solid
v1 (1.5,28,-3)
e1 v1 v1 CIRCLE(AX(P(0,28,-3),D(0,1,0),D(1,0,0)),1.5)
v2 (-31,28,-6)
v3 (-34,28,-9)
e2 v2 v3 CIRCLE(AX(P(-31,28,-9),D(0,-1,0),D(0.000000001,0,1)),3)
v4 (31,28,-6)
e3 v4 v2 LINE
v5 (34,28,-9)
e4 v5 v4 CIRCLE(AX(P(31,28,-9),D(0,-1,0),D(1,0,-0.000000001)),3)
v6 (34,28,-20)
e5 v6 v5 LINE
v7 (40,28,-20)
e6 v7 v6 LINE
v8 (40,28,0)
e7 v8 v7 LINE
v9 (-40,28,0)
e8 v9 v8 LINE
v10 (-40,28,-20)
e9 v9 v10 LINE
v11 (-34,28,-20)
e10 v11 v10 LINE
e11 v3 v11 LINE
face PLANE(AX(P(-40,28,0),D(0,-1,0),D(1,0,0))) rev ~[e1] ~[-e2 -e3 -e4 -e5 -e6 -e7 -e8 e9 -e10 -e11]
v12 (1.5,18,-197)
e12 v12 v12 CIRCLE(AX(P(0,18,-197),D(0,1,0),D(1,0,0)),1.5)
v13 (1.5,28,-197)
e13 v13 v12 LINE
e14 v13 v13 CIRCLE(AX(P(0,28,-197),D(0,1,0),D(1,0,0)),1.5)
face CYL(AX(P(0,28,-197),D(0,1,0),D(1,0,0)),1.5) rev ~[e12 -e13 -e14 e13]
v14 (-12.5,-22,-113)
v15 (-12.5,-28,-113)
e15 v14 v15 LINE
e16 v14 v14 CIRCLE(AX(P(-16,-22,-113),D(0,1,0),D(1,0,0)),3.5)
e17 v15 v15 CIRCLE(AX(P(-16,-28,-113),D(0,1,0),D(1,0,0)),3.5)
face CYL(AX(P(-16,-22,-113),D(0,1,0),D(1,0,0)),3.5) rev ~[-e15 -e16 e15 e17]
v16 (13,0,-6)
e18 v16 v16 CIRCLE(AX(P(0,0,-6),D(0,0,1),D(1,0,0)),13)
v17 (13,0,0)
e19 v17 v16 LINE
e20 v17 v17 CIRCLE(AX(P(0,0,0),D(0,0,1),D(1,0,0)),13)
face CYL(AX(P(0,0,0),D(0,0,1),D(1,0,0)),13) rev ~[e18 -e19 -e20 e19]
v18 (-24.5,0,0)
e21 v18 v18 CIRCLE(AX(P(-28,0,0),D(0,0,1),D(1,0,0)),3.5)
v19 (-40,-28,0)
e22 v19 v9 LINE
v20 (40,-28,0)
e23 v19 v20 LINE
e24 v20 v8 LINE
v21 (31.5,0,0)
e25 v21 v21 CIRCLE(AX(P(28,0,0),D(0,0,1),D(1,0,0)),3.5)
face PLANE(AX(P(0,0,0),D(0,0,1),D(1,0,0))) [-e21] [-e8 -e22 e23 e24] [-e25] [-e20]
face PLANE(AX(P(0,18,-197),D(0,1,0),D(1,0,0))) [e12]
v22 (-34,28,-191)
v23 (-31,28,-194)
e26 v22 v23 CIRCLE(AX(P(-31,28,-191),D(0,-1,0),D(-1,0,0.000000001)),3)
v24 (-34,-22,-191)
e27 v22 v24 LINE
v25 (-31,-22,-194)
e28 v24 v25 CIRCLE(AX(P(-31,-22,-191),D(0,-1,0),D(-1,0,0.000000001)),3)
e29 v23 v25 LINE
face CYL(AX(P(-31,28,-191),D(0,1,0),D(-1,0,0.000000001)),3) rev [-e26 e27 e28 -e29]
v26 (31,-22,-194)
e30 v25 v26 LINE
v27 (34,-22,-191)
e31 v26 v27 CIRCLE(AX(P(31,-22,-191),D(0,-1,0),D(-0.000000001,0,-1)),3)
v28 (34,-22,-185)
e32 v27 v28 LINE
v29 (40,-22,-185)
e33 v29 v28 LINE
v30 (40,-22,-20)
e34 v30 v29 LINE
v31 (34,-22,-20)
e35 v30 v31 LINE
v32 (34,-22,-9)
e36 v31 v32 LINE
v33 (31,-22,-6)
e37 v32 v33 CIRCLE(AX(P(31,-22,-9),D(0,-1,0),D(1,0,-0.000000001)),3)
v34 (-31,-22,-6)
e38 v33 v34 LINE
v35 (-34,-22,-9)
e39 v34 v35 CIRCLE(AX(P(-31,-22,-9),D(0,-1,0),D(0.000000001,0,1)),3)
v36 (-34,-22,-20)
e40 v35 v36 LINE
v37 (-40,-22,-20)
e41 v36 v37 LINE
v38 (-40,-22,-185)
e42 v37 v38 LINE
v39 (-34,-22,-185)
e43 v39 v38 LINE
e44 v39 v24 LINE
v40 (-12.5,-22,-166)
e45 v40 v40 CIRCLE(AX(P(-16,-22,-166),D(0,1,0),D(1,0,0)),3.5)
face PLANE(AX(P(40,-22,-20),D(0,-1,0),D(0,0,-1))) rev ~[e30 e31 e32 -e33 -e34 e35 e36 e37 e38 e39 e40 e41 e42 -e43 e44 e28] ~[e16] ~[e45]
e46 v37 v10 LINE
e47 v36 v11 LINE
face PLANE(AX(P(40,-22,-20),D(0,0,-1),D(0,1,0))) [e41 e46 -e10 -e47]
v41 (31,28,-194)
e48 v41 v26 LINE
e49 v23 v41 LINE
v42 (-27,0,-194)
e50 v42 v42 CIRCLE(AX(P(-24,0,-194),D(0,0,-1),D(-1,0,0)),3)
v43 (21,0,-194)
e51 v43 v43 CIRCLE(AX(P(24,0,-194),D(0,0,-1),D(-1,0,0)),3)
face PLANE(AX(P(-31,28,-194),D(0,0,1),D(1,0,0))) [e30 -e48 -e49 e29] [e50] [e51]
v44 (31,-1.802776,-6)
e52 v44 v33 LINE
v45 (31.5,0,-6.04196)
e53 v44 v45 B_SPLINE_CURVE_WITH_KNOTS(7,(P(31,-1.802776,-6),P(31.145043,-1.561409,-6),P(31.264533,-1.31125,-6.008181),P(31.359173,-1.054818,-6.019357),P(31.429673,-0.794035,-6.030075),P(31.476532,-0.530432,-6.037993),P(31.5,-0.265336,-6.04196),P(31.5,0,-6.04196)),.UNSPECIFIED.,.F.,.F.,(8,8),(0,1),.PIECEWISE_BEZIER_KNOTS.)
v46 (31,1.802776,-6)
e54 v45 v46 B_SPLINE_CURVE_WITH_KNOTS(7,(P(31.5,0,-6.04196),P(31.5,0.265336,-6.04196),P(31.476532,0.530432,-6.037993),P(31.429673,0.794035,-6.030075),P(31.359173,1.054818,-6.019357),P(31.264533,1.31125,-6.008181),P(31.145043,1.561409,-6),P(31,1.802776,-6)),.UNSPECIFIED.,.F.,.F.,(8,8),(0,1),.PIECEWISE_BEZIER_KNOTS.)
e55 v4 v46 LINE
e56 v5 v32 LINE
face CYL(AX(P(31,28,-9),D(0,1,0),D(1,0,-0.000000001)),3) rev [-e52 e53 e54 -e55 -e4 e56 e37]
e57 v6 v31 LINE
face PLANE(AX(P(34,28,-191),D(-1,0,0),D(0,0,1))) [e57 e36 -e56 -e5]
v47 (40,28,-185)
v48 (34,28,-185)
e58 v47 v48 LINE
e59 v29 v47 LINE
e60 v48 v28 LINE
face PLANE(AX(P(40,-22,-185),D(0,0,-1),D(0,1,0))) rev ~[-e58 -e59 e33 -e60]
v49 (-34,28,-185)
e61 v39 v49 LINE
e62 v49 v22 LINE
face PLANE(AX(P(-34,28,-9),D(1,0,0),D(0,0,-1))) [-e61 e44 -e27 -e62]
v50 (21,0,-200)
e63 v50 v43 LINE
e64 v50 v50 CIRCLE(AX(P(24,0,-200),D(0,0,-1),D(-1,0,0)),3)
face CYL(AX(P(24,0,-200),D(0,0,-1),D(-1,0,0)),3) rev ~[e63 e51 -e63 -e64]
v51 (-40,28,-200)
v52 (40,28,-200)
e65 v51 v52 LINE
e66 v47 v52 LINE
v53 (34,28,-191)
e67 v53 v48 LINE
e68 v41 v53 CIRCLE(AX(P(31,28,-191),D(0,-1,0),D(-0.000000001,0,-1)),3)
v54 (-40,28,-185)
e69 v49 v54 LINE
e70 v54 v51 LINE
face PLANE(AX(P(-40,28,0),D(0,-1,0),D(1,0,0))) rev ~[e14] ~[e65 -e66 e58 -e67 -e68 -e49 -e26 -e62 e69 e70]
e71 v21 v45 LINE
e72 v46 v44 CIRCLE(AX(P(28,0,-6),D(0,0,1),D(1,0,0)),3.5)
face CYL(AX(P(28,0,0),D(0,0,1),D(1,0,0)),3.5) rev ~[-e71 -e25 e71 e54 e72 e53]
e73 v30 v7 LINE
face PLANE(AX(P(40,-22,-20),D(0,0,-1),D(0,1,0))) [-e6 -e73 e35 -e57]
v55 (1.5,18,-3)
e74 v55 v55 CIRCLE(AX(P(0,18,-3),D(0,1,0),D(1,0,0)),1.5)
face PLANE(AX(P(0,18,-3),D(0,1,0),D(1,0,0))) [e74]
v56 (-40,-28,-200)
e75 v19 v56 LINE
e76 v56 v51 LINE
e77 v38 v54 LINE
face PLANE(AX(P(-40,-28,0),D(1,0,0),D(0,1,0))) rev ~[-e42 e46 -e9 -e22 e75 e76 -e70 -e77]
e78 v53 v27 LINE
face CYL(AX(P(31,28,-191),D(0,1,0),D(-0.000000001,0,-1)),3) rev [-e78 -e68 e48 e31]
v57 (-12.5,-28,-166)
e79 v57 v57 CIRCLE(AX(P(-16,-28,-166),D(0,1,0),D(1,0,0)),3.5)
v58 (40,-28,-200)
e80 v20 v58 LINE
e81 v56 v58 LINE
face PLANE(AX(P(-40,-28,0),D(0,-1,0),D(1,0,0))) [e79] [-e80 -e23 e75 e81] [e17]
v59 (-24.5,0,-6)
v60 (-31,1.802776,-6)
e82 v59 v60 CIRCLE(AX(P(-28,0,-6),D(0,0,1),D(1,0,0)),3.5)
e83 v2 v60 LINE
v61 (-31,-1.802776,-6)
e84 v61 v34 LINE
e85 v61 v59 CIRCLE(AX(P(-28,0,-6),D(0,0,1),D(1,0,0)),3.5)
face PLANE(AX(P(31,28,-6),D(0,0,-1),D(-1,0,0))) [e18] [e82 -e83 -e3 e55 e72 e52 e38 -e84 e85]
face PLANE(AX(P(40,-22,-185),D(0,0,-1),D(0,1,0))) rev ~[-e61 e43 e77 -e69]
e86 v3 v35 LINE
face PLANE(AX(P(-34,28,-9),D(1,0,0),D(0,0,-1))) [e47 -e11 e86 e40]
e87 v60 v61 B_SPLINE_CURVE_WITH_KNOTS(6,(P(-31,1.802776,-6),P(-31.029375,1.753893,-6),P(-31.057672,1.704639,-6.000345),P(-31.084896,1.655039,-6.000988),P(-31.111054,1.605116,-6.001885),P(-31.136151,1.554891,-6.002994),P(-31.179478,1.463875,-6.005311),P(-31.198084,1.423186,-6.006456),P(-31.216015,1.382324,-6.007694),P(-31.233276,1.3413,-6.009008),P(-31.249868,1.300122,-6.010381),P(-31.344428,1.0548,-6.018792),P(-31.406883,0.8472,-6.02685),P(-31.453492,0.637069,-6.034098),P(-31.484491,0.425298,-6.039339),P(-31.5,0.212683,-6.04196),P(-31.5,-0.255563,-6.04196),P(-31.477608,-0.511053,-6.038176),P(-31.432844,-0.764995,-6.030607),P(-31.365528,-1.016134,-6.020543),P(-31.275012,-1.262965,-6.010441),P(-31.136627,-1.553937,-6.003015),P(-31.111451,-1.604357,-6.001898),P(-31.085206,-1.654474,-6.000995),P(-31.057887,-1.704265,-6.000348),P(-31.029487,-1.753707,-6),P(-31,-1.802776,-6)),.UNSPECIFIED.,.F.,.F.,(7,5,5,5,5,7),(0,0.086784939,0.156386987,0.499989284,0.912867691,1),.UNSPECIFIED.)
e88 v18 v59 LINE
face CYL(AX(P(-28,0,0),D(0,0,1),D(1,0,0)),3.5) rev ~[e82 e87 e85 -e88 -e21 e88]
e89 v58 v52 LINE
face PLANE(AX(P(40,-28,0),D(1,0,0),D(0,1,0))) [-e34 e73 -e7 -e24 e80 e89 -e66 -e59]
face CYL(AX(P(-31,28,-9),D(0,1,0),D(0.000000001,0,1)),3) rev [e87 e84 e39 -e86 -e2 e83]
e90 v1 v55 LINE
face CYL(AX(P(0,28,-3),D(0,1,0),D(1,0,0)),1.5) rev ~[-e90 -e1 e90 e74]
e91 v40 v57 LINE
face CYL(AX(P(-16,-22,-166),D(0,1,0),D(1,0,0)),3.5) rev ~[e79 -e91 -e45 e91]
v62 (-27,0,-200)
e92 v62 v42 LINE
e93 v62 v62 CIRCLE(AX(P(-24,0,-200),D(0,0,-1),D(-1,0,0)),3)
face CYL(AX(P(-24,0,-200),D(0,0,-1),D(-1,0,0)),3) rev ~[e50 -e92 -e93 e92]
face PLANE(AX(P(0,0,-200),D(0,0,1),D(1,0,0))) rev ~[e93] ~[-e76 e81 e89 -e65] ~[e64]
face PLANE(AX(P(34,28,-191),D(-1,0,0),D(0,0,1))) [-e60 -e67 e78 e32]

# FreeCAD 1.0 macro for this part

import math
import FreeCAD as App
import Part
import Sketcher
from FreeCAD import Vector
Q = App.Units.Quantity


def add_polygon(sketch, points):
    """Adds a closed chain of lines whose ends are joined by coincident constraints."""
    first, n = sketch.GeometryCount, len(points)
    for a, b in zip(points, points[1:] + points[:1]):
        sketch.addGeometry(Part.LineSegment(App.Vector(*a, 0), App.Vector(*b, 0)), False)
    for i in range(n):
        sketch.addConstraint(Sketcher.Constraint("Coincident", first + i, 2, first + (i + 1) % n, 1))

doc = App.newDocument("Part")
body = doc.addObject("PartDesign::Body", "Body")

sketch1 = doc.addObject("Sketcher::SketchObject", "Sketch")
body.addObject(sketch1)
sketch1.AttachmentSupport = (doc.XY_Plane, [""])
sketch1.MapMode = "FlatFace"
add_polygon(sketch1, [(-40, 28), (-40, -28), (40, -28), (40, 28)])
sketch1.addConstraint([
    Sketcher.Constraint("Vertical", 0),
    Sketcher.Constraint("Horizontal", 1),
    Sketcher.Constraint("Vertical", 2),
    Sketcher.Constraint("Horizontal", 3),
    Sketcher.Constraint("Symmetric", 0, 2, 2, 2, -1, 1),
    Sketcher.Constraint("DistanceX", 1, 1, 1, 2, Q("80 mm")),
    Sketcher.Constraint("DistanceY", 0, 2, 0, 1, Q("56 mm")),
])
pad1 = doc.addObject("PartDesign::Pad", "Pad")
body.addObject(pad1)
pad1.Profile = sketch1
pad1.Length = 200
pad1.Reversed = True

sketch2 = doc.addObject("Sketcher::SketchObject", "Sketch001")
body.addObject(sketch2)
sketch2.AttachmentSupport = (doc.XZ_Plane, [""])
sketch2.MapMode = "FlatFace"
sketch2.AttachmentOffset = App.Placement(Vector(0, 0, -28), App.Rotation())
sketch2.addGeometry([
    Part.ArcOfCircle(Part.Circle(Vector(-31, -191, 0), Vector(0, 0, 1), 3), math.radians(180), math.radians(270)),
    Part.LineSegment(Vector(-34, -191, 0), Vector(-34, -9, 0)),
    Part.ArcOfCircle(Part.Circle(Vector(-31, -9, 0), Vector(0, 0, 1), 3), math.radians(90), math.radians(180)),
    Part.LineSegment(Vector(-31, -6, 0), Vector(31, -6, 0)),
    Part.ArcOfCircle(Part.Circle(Vector(31, -9, 0), Vector(0, 0, 1), 3), math.radians(0), math.radians(90)),
    Part.LineSegment(Vector(34, -9, 0), Vector(34, -191, 0)),
    Part.ArcOfCircle(Part.Circle(Vector(31, -191, 0), Vector(0, 0, 1), 3), math.radians(-90), math.radians(0)),
    Part.LineSegment(Vector(31, -194, 0), Vector(-31, -194, 0)),
], False)
sketch2.addConstraint([
    Sketcher.Constraint("Tangent", 0, 1, 1, 1),
    Sketcher.Constraint("Tangent", 1, 2, 2, 2),
    Sketcher.Constraint("Tangent", 2, 1, 3, 1),
    Sketcher.Constraint("Tangent", 3, 2, 4, 2),
    Sketcher.Constraint("Tangent", 4, 1, 5, 1),
    Sketcher.Constraint("Tangent", 5, 2, 6, 2),
    Sketcher.Constraint("Tangent", 6, 1, 7, 1),
    Sketcher.Constraint("Tangent", 7, 2, 0, 2),
    Sketcher.Constraint("Vertical", 1),
    Sketcher.Constraint("Horizontal", 3),
    Sketcher.Constraint("Vertical", 5),
    Sketcher.Constraint("Horizontal", 7),
    Sketcher.Constraint("Equal", 0, 2),
    Sketcher.Constraint("Equal", 2, 4),
    Sketcher.Constraint("Equal", 4, 6),
    Sketcher.Constraint("Radius", 0, Q("3 mm")),
    Sketcher.Constraint("DistanceX", 3, 1, 3, 2, Q("62 mm")),
    Sketcher.Constraint("DistanceY", 1, 1, 1, 2, Q("182 mm")),
    Sketcher.Constraint("DistanceX", 0, 3, -1, 1, Q("31 mm")),
    Sketcher.Constraint("DistanceY", 0, 3, -1, 1, Q("191 mm")),
])
pocket1 = doc.addObject("PartDesign::Pocket", "Pocket")
body.addObject(pocket1)
pocket1.Profile = sketch2
pocket1.Length = 50
pocket1.Reversed = True

sketch3 = doc.addObject("Sketcher::SketchObject", "Sketch002")
body.addObject(sketch3)
sketch3.AttachmentSupport = (doc.XY_Plane, [""])
sketch3.MapMode = "FlatFace"
sketch3.addGeometry([
    Part.Circle(Vector(-28, 0, 0), Vector(0, 0, 1), 3.5),
    Part.Circle(Vector(0, 0, 0), Vector(0, 0, 1), 13),
    Part.Circle(Vector(28, 0, 0), Vector(0, 0, 1), 3.5),
], False)
sketch3.addConstraint([
    Sketcher.Constraint("Coincident", 1, 3, -1, 1),
    Sketcher.Constraint("Equal", 0, 2),
    Sketcher.Constraint("Symmetric", 0, 3, 2, 3, -1, 1),
    Sketcher.Constraint("PointOnObject", 0, 3, -1),
    Sketcher.Constraint("Diameter", 0, Q("7 mm")),
    Sketcher.Constraint("Diameter", 1, Q("26 mm")),
    Sketcher.Constraint("DistanceX", 0, 3, -1, 1, Q("28 mm")),
])
pocket2 = doc.addObject("PartDesign::Pocket", "Pocket001")
body.addObject(pocket2)
pocket2.Profile = sketch3
pocket2.Length = 10

sketch4 = doc.addObject("Sketcher::SketchObject", "Sketch003")
body.addObject(sketch4)
sketch4.AttachmentSupport = (doc.YZ_Plane, [""])
sketch4.MapMode = "FlatFace"
sketch4.AttachmentOffset = App.Placement(Vector(0, 0, -40), App.Rotation())
sketch4.addGeometry(Part.Circle(Vector(-5, -121.5, 0), Vector(0, 0, 1), 2), False)
sketch4.addGeometry(Part.Circle(Vector(19, -121.5, 0), Vector(0, 0, 1), 2), False)
sketch4.addGeometry(Part.Circle(Vector(19, -158.5, 0), Vector(0, 0, 1), 2), False)
sketch4.addGeometry(Part.Circle(Vector(-5, -158.5, 0), Vector(0, 0, 1), 2), False)
add_polygon(sketch4, [(25, -153.5), (-11, -153.5), (-11, -126.5), (25, -126.5)])
sketch4.addConstraint([
    Sketcher.Constraint("Horizontal", 4),
    Sketcher.Constraint("Vertical", 5),
    Sketcher.Constraint("Horizontal", 6),
    Sketcher.Constraint("Vertical", 7),
    Sketcher.Constraint("Equal", 0, 1),
    Sketcher.Constraint("Equal", 1, 2),
    Sketcher.Constraint("Equal", 2, 3),
    Sketcher.Constraint("Horizontal", 0, 3, 1, 3),
    Sketcher.Constraint("Horizontal", 2, 3, 3, 3),
    Sketcher.Constraint("Vertical", 1, 3, 2, 3),
    Sketcher.Constraint("Vertical", 0, 3, 3, 3),
    Sketcher.Constraint("Diameter", 0, Q("4 mm")),
    Sketcher.Constraint("DistanceX", 4, 2, 4, 1, Q("36 mm")),
    Sketcher.Constraint("DistanceY", 5, 1, 5, 2, Q("27 mm")),
    Sketcher.Constraint("DistanceX", 0, 3, -1, 1, Q("5 mm")),
    Sketcher.Constraint("DistanceX", -1, 1, 1, 3, Q("19 mm")),
    Sketcher.Constraint("DistanceX", 4, 2, -1, 1, Q("11 mm")),
    Sketcher.Constraint("DistanceY", 2, 3, 1, 3, Q("37 mm")),
    Sketcher.Constraint("DistanceY", 3, 3, 4, 2, Q("5 mm")),
    Sketcher.Constraint("DistanceY", 0, 3, -1, 1, Q("121.5 mm")),
])
pocket3 = doc.addObject("PartDesign::Pocket", "Pocket002")
body.addObject(pocket3)
pocket3.Profile = sketch4
pocket3.Length = 10
pocket3.Reversed = True

sketch5 = doc.addObject("Sketcher::SketchObject", "Sketch004")
body.addObject(sketch5)
sketch5.AttachmentSupport = (doc.XY_Plane, [""])
sketch5.MapMode = "FlatFace"
sketch5.AttachmentOffset = App.Placement(Vector(0, 0, -200), App.Rotation())
sketch5.addGeometry([
    Part.Circle(Vector(-24, 0, 0), Vector(0, 0, 1), 3),
    Part.Circle(Vector(24, 0, 0), Vector(0, 0, 1), 3),
], False)
sketch5.addConstraint([
    Sketcher.Constraint("Equal", 0, 1),
    Sketcher.Constraint("Symmetric", 0, 3, 1, 3, -1, 1),
    Sketcher.Constraint("PointOnObject", 0, 3, -1),
    Sketcher.Constraint("Diameter", 0, Q("6 mm")),
    Sketcher.Constraint("DistanceX", 0, 3, -1, 1, Q("24 mm")),
])
pocket4 = doc.addObject("PartDesign::Pocket", "Pocket003")
body.addObject(pocket4)
pocket4.Profile = sketch5
pocket4.Length = 10
pocket4.Reversed = True

sketch6 = doc.addObject("Sketcher::SketchObject", "Sketch005")
body.addObject(sketch6)
sketch6.AttachmentSupport = (doc.XZ_Plane, [""])
sketch6.MapMode = "FlatFace"
sketch6.AttachmentOffset = App.Placement(Vector(0, 0, 22), App.Rotation())
sketch6.addGeometry([
    Part.Circle(Vector(-16, -166, 0), Vector(0, 0, 1), 3.5),
    Part.Circle(Vector(-16, -113, 0), Vector(0, 0, 1), 3.5),
], False)
sketch6.addConstraint([
    Sketcher.Constraint("Equal", 0, 1),
    Sketcher.Constraint("Vertical", 0, 3, 1, 3),
    Sketcher.Constraint("Diameter", 0, Q("7 mm")),
    Sketcher.Constraint("DistanceX", 0, 3, -1, 1, Q("16 mm")),
    Sketcher.Constraint("DistanceY", 0, 3, -1, 1, Q("166 mm")),
    Sketcher.Constraint("DistanceY", 1, 3, -1, 1, Q("113 mm")),
])
pocket5 = doc.addObject("PartDesign::Pocket", "Pocket004")
body.addObject(pocket5)
pocket5.Profile = sketch6
pocket5.Length = 10
pocket5.Reversed = True

sketch7 = doc.addObject("Sketcher::SketchObject", "Sketch006")
body.addObject(sketch7)
sketch7.AttachmentSupport = (doc.XZ_Plane, [""])
sketch7.MapMode = "FlatFace"
sketch7.AttachmentOffset = App.Placement(Vector(0, 0, -28), App.Rotation())
sketch7.addGeometry([
    Part.Circle(Vector(-37, -150, 0), Vector(0, 0, 1), 1.5),
    Part.Circle(Vector(-37, -50, 0), Vector(0, 0, 1), 1.5),
    Part.Circle(Vector(37, -50, 0), Vector(0, 0, 1), 1.5),
    Part.Circle(Vector(37, -150, 0), Vector(0, 0, 1), 1.5),
    Part.Circle(Vector(0, -197, 0), Vector(0, 0, 1), 1.5),
    Part.Circle(Vector(0, -3, 0), Vector(0, 0, 1), 1.5),
], False)
sketch7.addConstraint([
    Sketcher.Constraint("Equal", 0, 1),
    Sketcher.Constraint("Equal", 1, 2),
    Sketcher.Constraint("Equal", 2, 3),
    Sketcher.Constraint("Equal", 3, 4),
    Sketcher.Constraint("Equal", 4, 5),
    Sketcher.Constraint("Symmetric", 1, 3, 2, 3, -2),
    Sketcher.Constraint("Symmetric", 0, 3, 3, 3, -2),
    Sketcher.Constraint("PointOnObject", 4, 3, -2),
    Sketcher.Constraint("PointOnObject", 5, 3, -2),
    Sketcher.Constraint("Vertical", 0, 3, 1, 3),
    Sketcher.Constraint("Diameter", 0, Q("3 mm")),
    Sketcher.Constraint("DistanceX", 0, 3, -1, 1, Q("37 mm")),
    Sketcher.Constraint("DistanceY", 0, 3, -1, 1, Q("150 mm")),
    Sketcher.Constraint("DistanceY", 1, 3, -1, 1, Q("50 mm")),
    Sketcher.Constraint("DistanceY", 4, 3, -1, 1, Q("197 mm")),
    Sketcher.Constraint("DistanceY", 5, 3, -1, 1, Q("3 mm")),
])
pocket6 = doc.addObject("PartDesign::Pocket", "Pocket005")
body.addObject(pocket6)
pocket6.Profile = sketch7
pocket6.Length = 10
pocket6.Reversed = True

sketch8 = doc.addObject("Sketcher::SketchObject", "Sketch007")
body.addObject(sketch8)
sketch8.AttachmentSupport = (doc.YZ_Plane, [""])
sketch8.MapMode = "FlatFace"
sketch8.AttachmentOffset = App.Placement(Vector(0, 0, 40), App.Rotation())
add_polygon(sketch8, [(28, -20), (-22, -20), (-22, -185), (28, -185)])
sketch8.addConstraint([
    Sketcher.Constraint("Horizontal", 0),
    Sketcher.Constraint("Vertical", 1),
    Sketcher.Constraint("Horizontal", 2),
    Sketcher.Constraint("Vertical", 3),
    Sketcher.Constraint("DistanceX", 0, 2, 0, 1, Q("50 mm")),
    Sketcher.Constraint("DistanceY", 1, 2, 1, 1, Q("165 mm")),
    Sketcher.Constraint("DistanceX", 0, 2, -1, 1, Q("22 mm")),
    Sketcher.Constraint("DistanceY", 0, 2, -1, 1, Q("20 mm")),
])
pocket7 = doc.addObject("PartDesign::Pocket", "Pocket006")
body.addObject(pocket7)
pocket7.Profile = sketch8
pocket7.Type = "ThroughAll"

doc.recompute()
